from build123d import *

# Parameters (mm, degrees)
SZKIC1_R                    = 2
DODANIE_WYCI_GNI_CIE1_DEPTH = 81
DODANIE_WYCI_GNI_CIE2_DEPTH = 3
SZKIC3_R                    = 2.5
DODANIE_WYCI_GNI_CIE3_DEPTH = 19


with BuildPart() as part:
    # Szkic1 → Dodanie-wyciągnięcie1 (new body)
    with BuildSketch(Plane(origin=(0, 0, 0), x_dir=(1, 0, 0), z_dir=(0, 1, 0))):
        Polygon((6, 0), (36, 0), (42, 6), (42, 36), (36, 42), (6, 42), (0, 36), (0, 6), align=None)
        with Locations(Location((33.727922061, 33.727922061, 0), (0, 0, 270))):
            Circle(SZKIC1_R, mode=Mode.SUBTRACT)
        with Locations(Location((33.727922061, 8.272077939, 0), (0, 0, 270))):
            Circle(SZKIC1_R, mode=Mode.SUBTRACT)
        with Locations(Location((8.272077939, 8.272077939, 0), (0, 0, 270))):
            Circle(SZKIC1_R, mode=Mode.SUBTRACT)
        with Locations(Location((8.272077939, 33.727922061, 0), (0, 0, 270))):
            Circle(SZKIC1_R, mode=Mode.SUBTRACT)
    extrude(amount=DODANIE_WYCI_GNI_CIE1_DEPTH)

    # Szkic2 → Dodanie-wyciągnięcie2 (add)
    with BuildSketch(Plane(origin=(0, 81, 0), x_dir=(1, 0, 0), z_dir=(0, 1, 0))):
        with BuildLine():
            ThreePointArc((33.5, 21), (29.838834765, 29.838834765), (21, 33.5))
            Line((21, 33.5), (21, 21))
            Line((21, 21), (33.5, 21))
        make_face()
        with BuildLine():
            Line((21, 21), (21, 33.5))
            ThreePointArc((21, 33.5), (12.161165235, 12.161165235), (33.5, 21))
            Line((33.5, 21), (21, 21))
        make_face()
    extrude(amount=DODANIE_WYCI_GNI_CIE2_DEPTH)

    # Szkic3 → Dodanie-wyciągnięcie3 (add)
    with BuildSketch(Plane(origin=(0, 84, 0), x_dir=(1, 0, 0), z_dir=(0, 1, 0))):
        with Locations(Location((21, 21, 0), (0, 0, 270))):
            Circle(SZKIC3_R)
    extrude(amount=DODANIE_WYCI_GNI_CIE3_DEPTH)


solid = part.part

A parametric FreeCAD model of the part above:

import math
import FreeCAD as App
import Part
import Sketcher

V = App.Vector


def add_polygon(sketch, points):
    """Adds a closed chain of lines whose ends are joined by coincident constraints."""
    first, n = sketch.GeometryCount, len(points)
    for a, b in zip(points, points[1:] + points[:1]):
        sketch.addGeometry(Part.LineSegment(App.Vector(*a, 0), App.Vector(*b, 0)), False)
    for i in range(n):
        sketch.addConstraint(Sketcher.Constraint("Coincident", first + i, 2, first + (i + 1) % n, 1))

doc = App.newDocument("Part")
body = doc.addObject("PartDesign::Body", "Body")

# Sketch on XZ plane
sketch1 = body.newObject("Sketcher::SketchObject", "Sketch")
sketch1.AttachmentSupport = (doc.getObject("XZ_Plane"), [""])
sketch1.MapMode = "FlatFace"
add_polygon(sketch1, [(6, 0), (36, 0), (42, -6), (42, -36), (36, -42), (6, -42), (0, -36), (0, -6)])  # lines 0-7
sketch1.addGeometry(Part.Circle(V(8.3, -8.3, 0), V(0, 0, 1), 2), False)  # 8
sketch1.addGeometry(Part.Circle(V(33.7, -8.3, 0), V(0, 0, 1), 2), False)  # 9
sketch1.addGeometry(Part.Circle(V(8.3, -33.7, 0), V(0, 0, 1), 2), False)  # 10
sketch1.addGeometry(Part.Circle(V(33.7, -33.7, 0), V(0, 0, 1), 2), False)  # 11
sketch1.addConstraint([
    Sketcher.Constraint("Horizontal", 0),
    Sketcher.Constraint("Vertical", 2),
    Sketcher.Constraint("Horizontal", 4),
    Sketcher.Constraint("Vertical", 6),
    Sketcher.Constraint("Equal", 8, 9),
    Sketcher.Constraint("Equal", 9, 10),
    Sketcher.Constraint("Equal", 10, 11),
    Sketcher.Constraint("PointOnObject", 0, 2, -1),
    Sketcher.Constraint("PointOnObject", 5, 2, -2),
    Sketcher.Constraint("Perpendicular", 1, 3),
    Sketcher.Constraint("Perpendicular", 3, 5),
    Sketcher.Constraint("Perpendicular", 5, 7),
    Sketcher.Constraint("Horizontal", 8, 3, 9, 3),
    Sketcher.Constraint("Horizontal", 10, 3, 11, 3),
    Sketcher.Constraint("Horizontal", 2, 2, 5, 2),
    Sketcher.Constraint("Horizontal", 1, 2, 6, 2),
    Sketcher.Constraint("Vertical", 8, 3, 10, 3),
    Sketcher.Constraint("Vertical", 9, 3, 11, 3),
    Sketcher.Constraint("Vertical", 0, 2, 3, 2),
    Sketcher.Constraint("Vertical", 4, 2, 7, 2),
    Sketcher.Constraint("Equal", 4, 2),
    Sketcher.Constraint("Diameter", 8, 4.0),
    Sketcher.Constraint("DistanceX", 0, 1, 0, 2, 30.0),
    Sketcher.Constraint("DistanceX", -1, 1, 0, 2, 36.0),
    Sketcher.Constraint("DistanceX", -1, 1, 8, 3, 8.272078),
    Sketcher.Constraint("DistanceY", 8, 3, -1, 1, 8.272078),
    Sketcher.Constraint("DistanceX", -1, 1, 9, 3, 33.727922),
    Sketcher.Constraint("DistanceY", 10, 3, -1, 1, 33.727922),
])
pad1 = body.newObject("PartDesign::Pad", "Pad")
pad1.Profile = sketch1
pad1.Length = 81
pad1.Reversed = True

# Sketch on XZ plane
sketch2 = body.newObject("Sketcher::SketchObject", "Sketch001")
sketch2.AttachmentSupport = (doc.getObject("XZ_Plane"), [""])
sketch2.MapMode = "FlatFace"
sketch2.AttachmentOffset = App.Placement(V(0, 0, -81), App.Rotation())
sketch2.addGeometry([
    Part.ArcOfCircle(Part.Circle(V(21, -21, 0), V(0, 0, 1), 12), math.radians(-90), math.radians(0)),
    Part.ArcOfCircle(Part.Circle(V(21, -21, 0), V(0, 0, 1), 12), math.radians(0), math.radians(270)),
], False)
sketch2.addConstraint([
    Sketcher.Constraint("Tangent", 0, 1, 1, 2),
    Sketcher.Constraint("Coincident", 1, 1, 0, 2),
    Sketcher.Constraint("Horizontal", 0, 3, 1, 1),
    Sketcher.Constraint("Vertical", 1, 3, 0, 1),
    Sketcher.Constraint("Radius", 0, 12.5),
    Sketcher.Constraint("DistanceX", -1, 1, 0, 3, 21.0),
    Sketcher.Constraint("DistanceY", 0, 3, -1, 1, 21.0),
])
pad2 = body.newObject("PartDesign::Pad", "Pad001")
pad2.Profile = sketch2
pad2.Length = 3
pad2.Reversed = True

# Sketch on XZ plane
sketch3 = body.newObject("Sketcher::SketchObject", "Sketch002")
sketch3.AttachmentSupport = (doc.getObject("XZ_Plane"), [""])
sketch3.MapMode = "FlatFace"
sketch3.AttachmentOffset = App.Placement(V(0, 0, -84), App.Rotation())
sketch3.addGeometry(Part.Circle(V(21, -21, 0), V(0, 0, 1), 2.5), False)
sketch3.addConstraint([
    Sketcher.Constraint("Diameter", 0, 5.0),
    Sketcher.Constraint("DistanceX", -1, 1, 0, 3, 21.0),
    Sketcher.Constraint("DistanceY", 0, 3, -1, 1, 21.0),
])
pad3 = body.newObject("PartDesign::Pad", "Pad002")
pad3.Profile = sketch3
pad3.Length = 19
pad3.Reversed = True

doc.recompute()
